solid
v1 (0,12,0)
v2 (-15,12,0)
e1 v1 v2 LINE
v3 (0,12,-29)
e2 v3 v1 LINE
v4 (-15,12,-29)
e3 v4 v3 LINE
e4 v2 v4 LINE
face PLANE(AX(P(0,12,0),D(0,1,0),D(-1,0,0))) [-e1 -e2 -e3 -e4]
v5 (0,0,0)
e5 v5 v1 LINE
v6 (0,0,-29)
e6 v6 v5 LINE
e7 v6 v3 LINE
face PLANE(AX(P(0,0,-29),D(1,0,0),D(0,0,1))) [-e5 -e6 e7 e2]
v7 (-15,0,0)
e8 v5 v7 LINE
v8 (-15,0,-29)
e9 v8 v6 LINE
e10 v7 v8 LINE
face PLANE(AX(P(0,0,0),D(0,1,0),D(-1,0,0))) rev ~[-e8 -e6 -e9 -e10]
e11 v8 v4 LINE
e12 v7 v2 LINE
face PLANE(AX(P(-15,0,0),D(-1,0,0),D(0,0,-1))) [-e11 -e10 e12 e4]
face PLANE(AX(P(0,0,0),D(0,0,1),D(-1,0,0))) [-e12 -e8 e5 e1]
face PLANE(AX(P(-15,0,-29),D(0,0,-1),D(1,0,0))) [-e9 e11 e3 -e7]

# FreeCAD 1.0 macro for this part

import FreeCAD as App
import Part
import Sketcher

V = App.Vector
Q = App.Units.Quantity

doc = App.newDocument("Part")
body = doc.addObject("PartDesign::Body", "Body")

# Sketch on XZ plane
sketch1 = body.newObject("Sketcher::SketchObject", "Sketch")
sketch1.AttachmentSupport = (doc.getObject("XZ_Plane"), [""])
sketch1.MapMode = "FlatFace"
sketch1.addGeometry([
    Part.LineSegment(V(-15, 0, 0), V(0, 0, 0)),
    Part.LineSegment(V(0, 0, 0), V(0, -29, 0)),
    Part.LineSegment(V(0, -29, 0), V(-15, -29, 0)),
    Part.LineSegment(V(-15, -29, 0), V(-15, 0, 0)),
], False)
sketch1.addConstraint([
    Sketcher.Constraint("Coincident", 0, 2, 1, 1),
    Sketcher.Constraint("Coincident", 1, 2, 2, 1),
    Sketcher.Constraint("Coincident", 2, 2, 3, 1),
    Sketcher.Constraint("Coincident", 3, 2, 0, 1),
    Sketcher.Constraint("Horizontal", 0),
    Sketcher.Constraint("Vertical", 1),
    Sketcher.Constraint("Horizontal", 2),
    Sketcher.Constraint("Vertical", 3),
    Sketcher.Constraint("Coincident", 0, 2, -1, 1),
    Sketcher.Constraint("DistanceX", 0, 1, 0, 2, Q("15 mm")),
    Sketcher.Constraint("DistanceY", 1, 2, 1, 1, Q("29 mm")),
])
pad1 = body.newObject("PartDesign::Pad", "Pad")
pad1.Profile = sketch1
pad1.Length = 12
pad1.Reversed = True

doc.recompute()
